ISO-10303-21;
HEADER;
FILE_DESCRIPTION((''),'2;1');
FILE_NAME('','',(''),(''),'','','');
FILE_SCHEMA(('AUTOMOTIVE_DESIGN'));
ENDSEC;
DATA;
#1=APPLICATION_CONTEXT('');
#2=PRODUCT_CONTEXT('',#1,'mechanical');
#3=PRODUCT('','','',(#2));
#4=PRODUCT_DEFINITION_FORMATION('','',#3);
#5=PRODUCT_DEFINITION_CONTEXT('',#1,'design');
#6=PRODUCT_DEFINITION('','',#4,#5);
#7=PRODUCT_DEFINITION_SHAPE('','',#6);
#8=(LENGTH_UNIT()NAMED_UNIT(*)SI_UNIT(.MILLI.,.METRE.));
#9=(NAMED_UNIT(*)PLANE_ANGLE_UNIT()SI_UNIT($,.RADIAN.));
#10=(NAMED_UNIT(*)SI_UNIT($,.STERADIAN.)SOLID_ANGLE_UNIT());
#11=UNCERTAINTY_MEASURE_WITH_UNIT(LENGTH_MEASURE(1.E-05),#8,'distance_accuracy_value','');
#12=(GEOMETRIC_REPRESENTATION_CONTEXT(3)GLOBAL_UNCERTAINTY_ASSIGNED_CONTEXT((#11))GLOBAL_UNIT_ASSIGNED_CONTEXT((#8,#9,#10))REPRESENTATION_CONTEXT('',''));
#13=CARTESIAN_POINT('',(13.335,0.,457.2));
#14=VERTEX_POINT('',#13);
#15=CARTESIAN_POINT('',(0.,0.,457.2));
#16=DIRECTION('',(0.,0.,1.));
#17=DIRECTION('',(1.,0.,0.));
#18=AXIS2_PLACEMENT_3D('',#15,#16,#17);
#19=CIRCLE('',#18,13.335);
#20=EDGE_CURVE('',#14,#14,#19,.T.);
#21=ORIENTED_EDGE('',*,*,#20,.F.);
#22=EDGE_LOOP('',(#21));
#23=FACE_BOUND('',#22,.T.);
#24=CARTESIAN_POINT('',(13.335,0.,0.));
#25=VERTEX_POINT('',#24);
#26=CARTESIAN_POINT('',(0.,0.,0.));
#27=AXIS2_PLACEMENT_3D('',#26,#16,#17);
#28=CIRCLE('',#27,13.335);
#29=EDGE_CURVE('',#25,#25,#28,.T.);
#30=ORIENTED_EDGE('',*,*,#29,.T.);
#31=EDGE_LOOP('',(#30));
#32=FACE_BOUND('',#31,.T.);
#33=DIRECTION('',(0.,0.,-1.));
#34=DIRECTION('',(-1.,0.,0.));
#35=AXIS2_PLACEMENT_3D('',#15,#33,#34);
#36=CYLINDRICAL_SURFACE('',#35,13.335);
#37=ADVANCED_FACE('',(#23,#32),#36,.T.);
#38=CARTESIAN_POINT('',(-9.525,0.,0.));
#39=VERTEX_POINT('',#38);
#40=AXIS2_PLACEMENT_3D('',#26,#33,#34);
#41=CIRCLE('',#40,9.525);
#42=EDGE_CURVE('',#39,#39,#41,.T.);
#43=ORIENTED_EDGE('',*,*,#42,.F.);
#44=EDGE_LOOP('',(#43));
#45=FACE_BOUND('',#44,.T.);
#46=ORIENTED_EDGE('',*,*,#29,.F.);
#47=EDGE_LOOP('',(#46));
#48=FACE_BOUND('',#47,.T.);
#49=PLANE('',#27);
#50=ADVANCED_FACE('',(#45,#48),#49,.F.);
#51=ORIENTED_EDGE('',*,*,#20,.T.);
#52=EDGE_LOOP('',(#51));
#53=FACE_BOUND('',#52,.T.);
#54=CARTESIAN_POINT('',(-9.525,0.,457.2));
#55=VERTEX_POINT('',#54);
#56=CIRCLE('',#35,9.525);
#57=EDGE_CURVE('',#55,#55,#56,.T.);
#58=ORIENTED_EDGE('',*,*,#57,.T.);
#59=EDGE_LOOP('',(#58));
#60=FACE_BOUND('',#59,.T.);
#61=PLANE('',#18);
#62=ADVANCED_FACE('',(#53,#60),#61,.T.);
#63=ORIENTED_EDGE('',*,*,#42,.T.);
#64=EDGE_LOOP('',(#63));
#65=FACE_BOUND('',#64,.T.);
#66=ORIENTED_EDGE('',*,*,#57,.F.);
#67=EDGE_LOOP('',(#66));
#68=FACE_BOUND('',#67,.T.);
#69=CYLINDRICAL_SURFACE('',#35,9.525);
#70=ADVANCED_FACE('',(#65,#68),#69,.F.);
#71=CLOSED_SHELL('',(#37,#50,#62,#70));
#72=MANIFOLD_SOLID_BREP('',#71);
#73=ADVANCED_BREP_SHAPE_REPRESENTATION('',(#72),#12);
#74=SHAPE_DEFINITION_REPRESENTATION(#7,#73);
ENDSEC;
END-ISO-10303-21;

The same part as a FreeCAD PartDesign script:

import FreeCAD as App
import Part
import Sketcher
from FreeCAD import Vector
Q = App.Units.Quantity

doc = App.newDocument("Part")
body = doc.addObject("PartDesign::Body", "Body")

# Sketch on XY plane
sketch1 = body.newObject("Sketcher::SketchObject", "Sketch")
sketch1.AttachmentSupport = (doc.getObject("XY_Plane"), [""])
sketch1.MapMode = "FlatFace"
sketch1.addGeometry(Part.Circle(Vector(0, 0, 0), Vector(0, 0, 1), 13), False)
sketch1.addConstraint(Sketcher.Constraint("Coincident", 0, 3, -1, 1))
sketch1.addConstraint(Sketcher.Constraint("Diameter", 0, Q("1.05 in")))
pad1 = body.newObject("PartDesign::Pad", "Pad")
pad1.Profile = sketch1
pad1.Length = Q("18 in")

# Sketch on XY plane
sketch2 = body.newObject("Sketcher::SketchObject", "Sketch001")
sketch2.AttachmentSupport = (doc.getObject("XY_Plane"), [""])
sketch2.MapMode = "FlatFace"
sketch2.addGeometry(Part.Circle(Vector(0, 0, 0), Vector(0, 0, 1), 10), False)
sketch2.addConstraint(Sketcher.Constraint("Coincident", 0, 3, -1, 1))
sketch2.addConstraint(Sketcher.Constraint("Diameter", 0, Q("0.75 in")))
pocket1 = body.newObject("PartDesign::Pocket", "Pocket")
pocket1.Profile = sketch2
pocket1.Type = "ThroughAll"
pocket1.Reversed = True

doc.recompute()
